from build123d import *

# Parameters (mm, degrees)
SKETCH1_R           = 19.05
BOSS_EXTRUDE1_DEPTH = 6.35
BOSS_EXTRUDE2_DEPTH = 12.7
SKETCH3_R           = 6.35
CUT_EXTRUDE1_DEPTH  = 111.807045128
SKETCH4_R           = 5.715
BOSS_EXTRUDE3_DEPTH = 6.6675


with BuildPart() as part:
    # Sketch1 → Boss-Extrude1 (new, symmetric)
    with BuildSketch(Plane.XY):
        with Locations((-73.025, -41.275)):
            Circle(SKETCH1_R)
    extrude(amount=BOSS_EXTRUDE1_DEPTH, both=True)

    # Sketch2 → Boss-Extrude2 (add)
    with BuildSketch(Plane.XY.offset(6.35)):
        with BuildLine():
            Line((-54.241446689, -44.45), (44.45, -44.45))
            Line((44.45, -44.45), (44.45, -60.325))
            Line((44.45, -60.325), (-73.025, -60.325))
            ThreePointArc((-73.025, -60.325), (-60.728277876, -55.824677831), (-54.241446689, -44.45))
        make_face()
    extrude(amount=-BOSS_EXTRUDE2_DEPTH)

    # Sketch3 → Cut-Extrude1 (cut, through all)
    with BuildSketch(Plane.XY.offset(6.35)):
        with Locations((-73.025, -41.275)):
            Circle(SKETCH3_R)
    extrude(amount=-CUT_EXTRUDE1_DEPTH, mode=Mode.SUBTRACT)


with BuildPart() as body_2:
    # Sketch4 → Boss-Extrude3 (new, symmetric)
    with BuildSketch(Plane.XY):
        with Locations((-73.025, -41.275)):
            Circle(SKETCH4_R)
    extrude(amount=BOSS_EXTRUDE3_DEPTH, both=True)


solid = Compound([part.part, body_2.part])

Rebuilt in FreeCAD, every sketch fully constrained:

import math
import FreeCAD as App
import Part
import Sketcher
Q = App.Units.Quantity

doc = App.newDocument("Part")
body = doc.addObject("PartDesign::Body", "Body")

sketch1 = doc.addObject("Sketcher::SketchObject", "Sketch")
body.addObject(sketch1)
sketch1.AttachmentSupport = (doc.XY_Plane, [""])
sketch1.MapMode = "FlatFace"
sketch1.addGeometry(Part.Circle(App.Vector(-73.025, -41.275, 0), App.Vector(0, 0, 1), 19.05), False)
sketch1.addConstraint([
    Sketcher.Constraint("Diameter", 0, Q("1.5 in")),
    Sketcher.Constraint("DistanceX", 0, 3, -1, 1, Q("2.875 in")),
    Sketcher.Constraint("DistanceY", 0, 3, -1, 1, Q("1.625 in")),
])
pad1 = doc.addObject("PartDesign::Pad", "Pad")
body.addObject(pad1)
pad1.Profile = sketch1
pad1.Length = Q("0.5 in")
pad1.Midplane = True

sketch2 = doc.addObject("Sketcher::SketchObject", "Sketch001")
body.addObject(sketch2)
sketch2.AttachmentSupport = (doc.XY_Plane, [""])
sketch2.MapMode = "FlatFace"
sketch2.AttachmentOffset = App.Placement(App.Vector(0, 0, 0.25 * 25.4), App.Rotation())
sketch2.addGeometry([
    Part.LineSegment(App.Vector(44.45, -44.45, 0), App.Vector(-54.241447, -44.45, 0)),
    Part.ArcOfCircle(Part.Circle(App.Vector(-73.025, -41.275, 0), App.Vector(0, 0, 1), 19.05), math.radians(-90), math.radians(-9.594068)),
    Part.LineSegment(App.Vector(-73.025, -60.325, 0), App.Vector(44.45, -60.325, 0)),
    Part.LineSegment(App.Vector(44.45, -60.325, 0), App.Vector(44.45, -44.45, 0)),
], False)
sketch2.addConstraint([
    Sketcher.Constraint("Coincident", 0, 2, 1, 2),
    Sketcher.Constraint("Tangent", 1, 1, 2, 1),
    Sketcher.Constraint("Coincident", 2, 2, 3, 1),
    Sketcher.Constraint("Coincident", 3, 2, 0, 1),
    Sketcher.Constraint("Horizontal", 0),
    Sketcher.Constraint("Horizontal", 2),
    Sketcher.Constraint("Vertical", 3),
    Sketcher.Constraint("Radius", 1, Q("0.75 in")),
    Sketcher.Constraint("DistanceX", 2, 1, 2, 2, Q("4.625 in")),
    Sketcher.Constraint("DistanceY", 3, 1, 3, 2, Q("0.625 in")),
    Sketcher.Constraint("DistanceY", 0, 2, -1, 1, Q("1.75 in")),
    Sketcher.Constraint("DistanceX", -1, 1, 2, 2, Q("1.75 in")),
])
pad2 = doc.addObject("PartDesign::Pad", "Pad001")
body.addObject(pad2)
pad2.Profile = sketch2
pad2.Length = Q("0.5 in")
pad2.Reversed = True

sketch3 = doc.addObject("Sketcher::SketchObject", "Sketch002")
body.addObject(sketch3)
sketch3.AttachmentSupport = (doc.XY_Plane, [""])
sketch3.MapMode = "FlatFace"
sketch3.AttachmentOffset = App.Placement(App.Vector(0, 0, 0.25 * 25.4), App.Rotation())
sketch3.addGeometry(Part.Circle(App.Vector(-73.025, -41.275, 0), App.Vector(0, 0, 1), 6.35), False)
sketch3.addConstraint([
    Sketcher.Constraint("Diameter", 0, Q("0.5 in")),
    Sketcher.Constraint("DistanceX", 0, 3, -1, 1, Q("2.875 in")),
    Sketcher.Constraint("DistanceY", 0, 3, -1, 1, Q("1.625 in")),
])
pocket1 = doc.addObject("PartDesign::Pocket", "Pocket")
body.addObject(pocket1)
pocket1.Profile = sketch3
pocket1.Type = "ThroughAll"
body2 = doc.addObject("PartDesign::Body", "Body001")

sketch4 = doc.addObject("Sketcher::SketchObject", "Sketch003")
body2.addObject(sketch4)
sketch4.AttachmentSupport = (doc.getObject("XY_Plane001"), [""])
sketch4.MapMode = "FlatFace"
sketch4.addGeometry(Part.Circle(App.Vector(-73.025, -41.275, 0), App.Vector(0, 0, 1), 5.715), False)
sketch4.addConstraint([
    Sketcher.Constraint("Diameter", 0, Q("0.45 in")),
    Sketcher.Constraint("DistanceX", 0, 3, -1, 1, Q("2.875 in")),
    Sketcher.Constraint("DistanceY", 0, 3, -1, 1, Q("1.625 in")),
])
pad3 = doc.addObject("PartDesign::Pad", "Pad002")
body2.addObject(pad3)
pad3.Profile = sketch4
pad3.Length = Q("0.525 in")
pad3.Midplane = True

doc.recompute()
